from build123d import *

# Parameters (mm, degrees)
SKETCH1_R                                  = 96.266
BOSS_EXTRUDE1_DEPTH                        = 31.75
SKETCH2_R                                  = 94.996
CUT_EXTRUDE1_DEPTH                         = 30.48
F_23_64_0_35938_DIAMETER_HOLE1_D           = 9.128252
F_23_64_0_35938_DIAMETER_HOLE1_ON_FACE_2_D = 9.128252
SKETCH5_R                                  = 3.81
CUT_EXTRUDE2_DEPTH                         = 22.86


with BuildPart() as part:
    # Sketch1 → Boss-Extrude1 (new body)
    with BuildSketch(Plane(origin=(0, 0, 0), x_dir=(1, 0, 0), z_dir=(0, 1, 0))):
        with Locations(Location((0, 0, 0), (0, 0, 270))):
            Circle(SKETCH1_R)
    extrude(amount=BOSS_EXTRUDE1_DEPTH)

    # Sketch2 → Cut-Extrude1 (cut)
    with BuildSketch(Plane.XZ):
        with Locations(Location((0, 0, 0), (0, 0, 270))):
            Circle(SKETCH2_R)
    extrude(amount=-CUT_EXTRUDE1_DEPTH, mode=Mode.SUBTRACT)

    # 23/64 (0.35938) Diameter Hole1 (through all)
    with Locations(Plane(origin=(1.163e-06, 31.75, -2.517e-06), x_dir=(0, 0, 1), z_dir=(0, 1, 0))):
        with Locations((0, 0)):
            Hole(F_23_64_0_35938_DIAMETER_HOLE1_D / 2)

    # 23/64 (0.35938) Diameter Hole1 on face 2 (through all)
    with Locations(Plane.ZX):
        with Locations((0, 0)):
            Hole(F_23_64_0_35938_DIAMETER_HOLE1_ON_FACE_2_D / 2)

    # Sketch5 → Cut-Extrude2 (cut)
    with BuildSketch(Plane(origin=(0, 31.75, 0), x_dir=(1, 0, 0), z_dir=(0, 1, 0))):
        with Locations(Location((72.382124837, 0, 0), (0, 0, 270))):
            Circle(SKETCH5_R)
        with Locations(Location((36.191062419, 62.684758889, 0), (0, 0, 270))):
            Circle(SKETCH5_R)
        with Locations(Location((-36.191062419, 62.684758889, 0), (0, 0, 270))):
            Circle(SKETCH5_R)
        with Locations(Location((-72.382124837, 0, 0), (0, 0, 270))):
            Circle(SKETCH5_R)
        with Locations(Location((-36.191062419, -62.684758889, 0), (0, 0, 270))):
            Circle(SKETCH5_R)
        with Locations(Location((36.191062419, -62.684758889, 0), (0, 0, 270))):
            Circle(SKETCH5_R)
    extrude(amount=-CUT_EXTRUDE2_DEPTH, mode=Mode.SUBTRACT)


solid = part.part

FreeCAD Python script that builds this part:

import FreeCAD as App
import Part
import Sketcher
from FreeCAD import Vector
Q = App.Units.Quantity

doc = App.newDocument("Part")
params = doc.addObject("Spreadsheet::Sheet", "Params")
for row, (alias, value) in enumerate([
    ("sketch1_diameter", "7.58 in"),
    ("pad1_length", "1.25 in"),
    ("sketch2_diameter", "7.48 in"),
    ("pocket1_length", "1.2 in"),
    ("hole_diameter", "9.128252 mm"),
    ("hole2_diameter", "9.128252 mm"),
    ("sketch5_diameter", "0.3 in"),
    ("pocket2_length", "0.9 in"),
], start=1):
    params.set(f"A{row}", alias)
    params.set(f"B{row}", "=" + value)
    params.setAlias(f"B{row}", alias)

body = doc.addObject("PartDesign::Body", "Body")

sketch1 = body.newObject("Sketcher::SketchObject", "Sketch")
sketch1.AttachmentSupport = (doc.getObject("XZ_Plane"), [""])
sketch1.MapMode = "FlatFace"
sketch1.addGeometry(Part.Circle(Vector(0, 0, 0), Vector(0, 0, 1), 96), False)
sketch1.addConstraint(Sketcher.Constraint("Coincident", 0, 3, -1, 1))
sketch1.addConstraint(Sketcher.Constraint("Diameter", 0, Q("7.58 in")))
sketch1.setExpression("Constraints[1]", "Params.sketch1_diameter")
pad1 = body.newObject("PartDesign::Pad", "Pad")
pad1.Profile = sketch1
pad1.setExpression("Length", "Params.pad1_length")
pad1.Reversed = True

sketch2 = body.newObject("Sketcher::SketchObject", "Sketch001")
sketch2.AttachmentSupport = (doc.getObject("XZ_Plane"), [""])
sketch2.MapMode = "FlatFace"
sketch2.addGeometry(Part.Circle(Vector(0, 0, 0), Vector(0, 0, 1), 95), False)
sketch2.addConstraint(Sketcher.Constraint("Coincident", 0, 3, -1, 1))
sketch2.addConstraint(Sketcher.Constraint("Diameter", 0, Q("7.48 in")))
sketch2.setExpression("Constraints[1]", "Params.sketch2_diameter")
pocket1 = body.newObject("PartDesign::Pocket", "Pocket")
pocket1.Profile = sketch2
pocket1.setExpression("Length", "Params.pocket1_length")

sketch3 = body.newObject("Sketcher::SketchObject", "Sketch002")
sketch3.AttachmentSupport = (doc.getObject("XZ_Plane"), [""])
sketch3.MapMode = "FlatFace"
sketch3.AttachmentOffset = App.Placement(Vector(0, 0, -1.25 * 25.4), App.Rotation())
sketch3.addGeometry(Part.Circle(Vector(0, 0, 0), Vector(0, 0, 1), 4.6), False)
sketch3.addConstraint(Sketcher.Constraint("Coincident", 0, 3, -1, 1))
sketch3.addConstraint(Sketcher.Constraint("Diameter", 0, 9.128252))
doc.recompute()
hole = body.newObject("PartDesign::Hole", "Hole")
hole.Profile = sketch3
hole.ThreadType = "None"
hole.setExpression("Diameter", "Params.hole_diameter")
hole.DepthType = "ThroughAll"
hole.Reversed = True

sketch4 = body.newObject("Sketcher::SketchObject", "Sketch003")
sketch4.AttachmentSupport = (doc.getObject("XZ_Plane"), [""])
sketch4.MapMode = "FlatFace"
sketch4.addGeometry(Part.Circle(Vector(0, 0, 0), Vector(0, 0, 1), 4.6), False)
sketch4.addConstraint(Sketcher.Constraint("Coincident", 0, 3, -1, 1))
sketch4.addConstraint(Sketcher.Constraint("Diameter", 0, 9.128252))
doc.recompute()
hole2 = body.newObject("PartDesign::Hole", "Hole001")
hole2.Profile = sketch4
hole2.ThreadType = "None"
hole2.setExpression("Diameter", "Params.hole2_diameter")
hole2.DepthType = "ThroughAll"
hole2.Reversed = True

sketch5 = body.newObject("Sketcher::SketchObject", "Sketch004")
sketch5.AttachmentSupport = (doc.getObject("XZ_Plane"), [""])
sketch5.MapMode = "FlatFace"
sketch5.AttachmentOffset = App.Placement(Vector(0, 0, -1.25 * 25.4), App.Rotation())
sketch5.addGeometry(Part.Circle(Vector(72.4, 0, 0), Vector(0, 0, 1), 3.8), False)
sketch5.addGeometry(Part.Circle(Vector(36.2, -62.7, 0), Vector(0, 0, 1), 3.8), False)
sketch5.addGeometry(Part.Circle(Vector(-36.2, -62.7, 0), Vector(0, 0, 1), 3.8), False)
sketch5.addGeometry(Part.Circle(Vector(-72.4, 0, 0), Vector(0, 0, 1), 3.8), False)
sketch5.addGeometry(Part.Circle(Vector(-36.2, 62.7, 0), Vector(0, 0, 1), 3.8), False)
sketch5.addGeometry(Part.Circle(Vector(36.2, 62.7, 0), Vector(0, 0, 1), 3.8), False)
sketch5.addConstraint(Sketcher.Constraint("Equal", 0, 1))
sketch5.addConstraint(Sketcher.Constraint("Equal", 1, 2))
sketch5.addConstraint(Sketcher.Constraint("Equal", 2, 3))
sketch5.addConstraint(Sketcher.Constraint("Equal", 3, 4))
sketch5.addConstraint(Sketcher.Constraint("Equal", 4, 5))
sketch5.addConstraint(Sketcher.Constraint("Symmetric", 0, 3, 3, 3, -1, 1))
sketch5.addConstraint(Sketcher.Constraint("Symmetric", 1, 3, 4, 3, -1, 1))
sketch5.addConstraint(Sketcher.Constraint("Symmetric", 2, 3, 5, 3, -1, 1))
sketch5.addConstraint(Sketcher.Constraint("Symmetric", 1, 3, 2, 3, -2))
sketch5.addConstraint(Sketcher.Constraint("PointOnObject", 0, 3, -1))
sketch5.addConstraint(Sketcher.Constraint("Diameter", 0, Q("0.3 in")))
sketch5.addConstraint(Sketcher.Constraint("DistanceY", 1, 3, -1, 1, 62.684759))
sketch5.addConstraint(Sketcher.Constraint("DistanceX", 3, 3, 0, 3, 144.76425))
sketch5.addConstraint(Sketcher.Constraint("DistanceX", -1, 1, 1, 3, 36.191062))
sketch5.setExpression("Constraints[10]", "Params.sketch5_diameter")
pocket2 = body.newObject("PartDesign::Pocket", "Pocket001")
pocket2.Profile = sketch5
pocket2.setExpression("Length", "Params.pocket2_length")
pocket2.Reversed = True

doc.recompute()
